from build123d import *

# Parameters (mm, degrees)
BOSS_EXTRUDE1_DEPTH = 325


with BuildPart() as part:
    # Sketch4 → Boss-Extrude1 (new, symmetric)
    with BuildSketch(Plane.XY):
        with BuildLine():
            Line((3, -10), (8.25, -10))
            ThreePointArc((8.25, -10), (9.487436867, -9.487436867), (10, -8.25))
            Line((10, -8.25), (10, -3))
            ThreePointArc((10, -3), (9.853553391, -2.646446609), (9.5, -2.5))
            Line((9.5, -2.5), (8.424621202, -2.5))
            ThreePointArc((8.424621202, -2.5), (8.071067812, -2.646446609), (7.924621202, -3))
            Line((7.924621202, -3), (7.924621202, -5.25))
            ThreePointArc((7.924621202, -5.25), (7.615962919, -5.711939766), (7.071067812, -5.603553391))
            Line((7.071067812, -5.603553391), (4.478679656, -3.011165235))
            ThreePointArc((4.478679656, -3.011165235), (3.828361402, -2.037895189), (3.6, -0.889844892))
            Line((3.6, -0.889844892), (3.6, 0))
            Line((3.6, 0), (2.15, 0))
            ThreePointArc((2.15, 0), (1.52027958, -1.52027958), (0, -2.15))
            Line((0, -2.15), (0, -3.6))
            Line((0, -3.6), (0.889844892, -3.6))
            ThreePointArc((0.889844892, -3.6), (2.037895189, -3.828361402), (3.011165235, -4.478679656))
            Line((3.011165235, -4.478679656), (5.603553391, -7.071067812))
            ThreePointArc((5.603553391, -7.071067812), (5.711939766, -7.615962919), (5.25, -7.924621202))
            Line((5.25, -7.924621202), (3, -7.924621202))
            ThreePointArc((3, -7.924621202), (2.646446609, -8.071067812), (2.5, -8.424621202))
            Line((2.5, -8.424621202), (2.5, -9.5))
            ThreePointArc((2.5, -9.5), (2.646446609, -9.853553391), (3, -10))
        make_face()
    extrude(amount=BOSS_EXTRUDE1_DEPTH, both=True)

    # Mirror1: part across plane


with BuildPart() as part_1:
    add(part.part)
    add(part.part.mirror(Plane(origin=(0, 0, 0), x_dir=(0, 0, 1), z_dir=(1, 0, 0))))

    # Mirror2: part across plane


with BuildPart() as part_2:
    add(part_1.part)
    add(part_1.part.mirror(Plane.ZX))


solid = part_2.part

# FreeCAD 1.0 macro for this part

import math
import FreeCAD as App
import Part
import Sketcher
from FreeCAD import Vector
Q = App.Units.Quantity

doc = App.newDocument("Part")
params = doc.addObject("Spreadsheet::Sheet", "Params")
for row, (alias, value) in enumerate([
    ("sketch1_radius", "3 mm"),
    ("sketch1_radius2", "0.5 mm"),
    ("sketch1_radius3", "1.75 mm"),
    ("sketch1_radius4", "2.15 mm"),
    ("sketch1_width", "1.45 mm"),
    ("pad1_length", "650 mm"),
], start=1):
    params.set(f"A{row}", alias)
    params.set(f"B{row}", "=" + value)
    params.setAlias(f"B{row}", alias)

body = doc.addObject("PartDesign::Body", "Body")

# Sketch on XY plane
sketch1 = doc.addObject("Sketcher::SketchObject", "Sketch")
body.addObject(sketch1)
sketch1.AttachmentSupport = (doc.XY_Plane, [""])
sketch1.MapMode = "FlatFace"
sketch1.addGeometry([
    Part.LineSegment(Vector(3, -10, 0), Vector(8.25, -10, 0)),  # 0
    Part.ArcOfCircle(Part.Circle(Vector(8.25, -8.25, 0), Vector(0, 0, 1), 1.75), math.radians(-90), math.radians(0)),  # 1
    Part.LineSegment(Vector(10, -8.25, 0), Vector(10, -3, 0)),  # 2
    Part.ArcOfCircle(Part.Circle(Vector(9.5, -3, 0), Vector(0, 0, 1), 0.5), math.radians(0), math.radians(90)),  # 3
    Part.LineSegment(Vector(9.5, -2.5, 0), Vector(8.42, -2.5, 0)),  # 4
    Part.ArcOfCircle(Part.Circle(Vector(8.42, -3, 0), Vector(0, 0, 1), 0.5), math.radians(90), math.radians(180)),  # 5
    Part.LineSegment(Vector(7.92, -3, 0), Vector(7.92, -5.25, 0)),  # 6
    Part.ArcOfCircle(Part.Circle(Vector(7.42, -5.25, 0), Vector(0, 0, 1), 0.5), math.radians(-135), math.radians(0)),  # 7
    Part.LineSegment(Vector(7.07, -5.6, 0), Vector(4.48, -3.01, 0)),  # 8
    Part.ArcOfCircle(Part.Circle(Vector(6.6, -0.89, 0), Vector(0, 0, 1), 3), math.radians(180), math.radians(225)),  # 9
    Part.LineSegment(Vector(3.6, -0.89, 0), Vector(3.6, 0, 0)),  # 10
    Part.LineSegment(Vector(3.6, 0, 0), Vector(2.15, 0, 0)),  # 11
    Part.ArcOfCircle(Part.Circle(Vector(0, 0, 0), Vector(0, 0, 1), 2.15), math.radians(-90), math.radians(0)),  # 12
    Part.LineSegment(Vector(0, -2.15, 0), Vector(0, -3.6, 0)),  # 13
    Part.LineSegment(Vector(0, -3.6, 0), Vector(0.89, -3.6, 0)),  # 14
    Part.ArcOfCircle(Part.Circle(Vector(0.89, -6.6, 0), Vector(0, 0, 1), 3), math.radians(45), math.radians(90)),  # 15
    Part.LineSegment(Vector(3.01, -4.48, 0), Vector(5.6, -7.07, 0)),  # 16
    Part.ArcOfCircle(Part.Circle(Vector(5.25, -7.42, 0), Vector(0, 0, 1), 0.5), math.radians(-90), math.radians(45)),  # 17
    Part.LineSegment(Vector(5.25, -7.92, 0), Vector(3, -7.92, 0)),  # 18
    Part.ArcOfCircle(Part.Circle(Vector(3, -8.42, 0), Vector(0, 0, 1), 0.5), math.radians(90), math.radians(180)),  # 19
    Part.LineSegment(Vector(2.5, -8.42, 0), Vector(2.5, -9.5, 0)),  # 20
    Part.ArcOfCircle(Part.Circle(Vector(3, -9.5, 0), Vector(0, 0, 1), 0.5), math.radians(180), math.radians(270)),  # 21
], False)
sketch1.addConstraint([
    Sketcher.Constraint("Tangent", 0, 2, 1, 1),
    Sketcher.Constraint("Tangent", 1, 2, 2, 1),
    Sketcher.Constraint("Tangent", 2, 2, 3, 1),
    Sketcher.Constraint("Tangent", 3, 2, 4, 1),
    Sketcher.Constraint("Tangent", 4, 2, 5, 1),
    Sketcher.Constraint("Tangent", 5, 2, 6, 1),
    Sketcher.Constraint("Tangent", 6, 2, 7, 2),
    Sketcher.Constraint("Tangent", 7, 1, 8, 1),
    Sketcher.Constraint("Tangent", 8, 2, 9, 2),
    Sketcher.Constraint("Tangent", 9, 1, 10, 1),
    Sketcher.Constraint("Coincident", 10, 2, 11, 1),
    Sketcher.Constraint("Coincident", 11, 2, 12, 2),
    Sketcher.Constraint("Coincident", 12, 1, 13, 1),
    Sketcher.Constraint("Coincident", 13, 2, 14, 1),
    Sketcher.Constraint("Tangent", 14, 2, 15, 2),
    Sketcher.Constraint("Tangent", 15, 1, 16, 1),
    Sketcher.Constraint("Tangent", 16, 2, 17, 2),
    Sketcher.Constraint("Tangent", 17, 1, 18, 1),
    Sketcher.Constraint("Tangent", 18, 2, 19, 1),
    Sketcher.Constraint("Tangent", 19, 2, 20, 1),
    Sketcher.Constraint("Tangent", 20, 2, 21, 1),
    Sketcher.Constraint("Tangent", 21, 2, 0, 1),
    Sketcher.Constraint("Horizontal", 0),
    Sketcher.Constraint("Vertical", 2),
    Sketcher.Constraint("Horizontal", 4),
    Sketcher.Constraint("Vertical", 6),
    Sketcher.Constraint("Vertical", 10),
    Sketcher.Constraint("Horizontal", 11),
    Sketcher.Constraint("Vertical", 13),
    Sketcher.Constraint("Horizontal", 14),
    Sketcher.Constraint("Horizontal", 18),
    Sketcher.Constraint("Vertical", 20),
    Sketcher.Constraint("Coincident", 12, 3, -1, 1),
    Sketcher.Constraint("Equal", 3, 5),
    Sketcher.Constraint("Equal", 5, 7),
    Sketcher.Constraint("Equal", 9, 15),
    Sketcher.Constraint("Equal", 7, 17),
    Sketcher.Constraint("Equal", 17, 19),
    Sketcher.Constraint("Equal", 19, 21),
    Sketcher.Constraint("PointOnObject", 10, 2, -1),
    Sketcher.Constraint("PointOnObject", 12, 1, -2),
    Sketcher.Constraint("Parallel", 8, 16),
    Sketcher.Constraint("Equal", 0, 2),
    Sketcher.Constraint("Equal", 18, 6),
    Sketcher.Constraint("Equal", 14, 10),
    Sketcher.Constraint("Equal", 11, 13),
    Sketcher.Constraint("Equal", 4, 20),
    Sketcher.Constraint("Equal", 8, 16),
    Sketcher.Constraint("Radius", 9, Q("3 mm")),
    Sketcher.Constraint("Radius", 3, Q("0.5 mm")),
    Sketcher.Constraint("Radius", 1, Q("1.75 mm")),
    Sketcher.Constraint("Radius", 12, Q("2.15 mm")),
    Sketcher.Constraint("DistanceY", 3, 3, -1, 1, Q("3 mm")),
    Sketcher.Constraint("DistanceY", 0, 2, -1, 1, Q("10 mm")),
    Sketcher.Constraint("DistanceY", 1, 3, 7, 3, Q("3 mm")),
    Sketcher.Constraint("DistanceX", 11, 2, 11, 1, Q("1.45 mm")),
    Sketcher.Constraint("DistanceX", 4, 2, 4, 1, Q("1.075379 mm")),
])
sketch1.setExpression("Constraints[48]", "Params.sketch1_radius")
sketch1.setExpression("Constraints[49]", "Params.sketch1_radius2")
sketch1.setExpression("Constraints[50]", "Params.sketch1_radius3")
sketch1.setExpression("Constraints[51]", "Params.sketch1_radius4")
sketch1.setExpression("Constraints[55]", "Params.sketch1_width")
pad1 = doc.addObject("PartDesign::Pad", "Pad")
body.addObject(pad1)
pad1.Profile = sketch1
pad1.setExpression("Length", "Params.pad1_length")
pad1.Midplane = True
body2 = doc.addObject("PartDesign::Body", "Body001")
doc.recompute()

body2.BaseFeature = body
doc.recompute()

mirroring = doc.addObject("Part::Mirroring", "Mirroring")
mirroring.Source = body
mirroring.Base = Vector(0, 0, 0)
mirroring.Normal = Vector(1, 0, 0)
body3 = doc.addObject("PartDesign::Body", "Body002")
body3.BaseFeature = mirroring
boolean = doc.addObject("PartDesign::Boolean", "Boolean")
body2.addObject(boolean)
boolean.Type = "Fuse"
boolean.addObjects([body3])
doc.recompute()
body4 = doc.addObject("PartDesign::Body", "Body003")
doc.recompute()

body4.BaseFeature = body2
doc.recompute()

mirroring2 = doc.addObject("Part::Mirroring", "Mirroring001")
mirroring2.Source = body2
mirroring2.Base = Vector(0, 0, 0)
mirroring2.Normal = Vector(0, 1, 0)
body5 = doc.addObject("PartDesign::Body", "Body004")
body5.BaseFeature = mirroring2
boolean2 = doc.addObject("PartDesign::Boolean", "Boolean001")
body4.addObject(boolean2)
boolean2.Type = "Fuse"
boolean2.addObjects([body5])
doc.recompute()
mirroring.Visibility = False
mirroring2.Visibility = False

doc.recompute()
